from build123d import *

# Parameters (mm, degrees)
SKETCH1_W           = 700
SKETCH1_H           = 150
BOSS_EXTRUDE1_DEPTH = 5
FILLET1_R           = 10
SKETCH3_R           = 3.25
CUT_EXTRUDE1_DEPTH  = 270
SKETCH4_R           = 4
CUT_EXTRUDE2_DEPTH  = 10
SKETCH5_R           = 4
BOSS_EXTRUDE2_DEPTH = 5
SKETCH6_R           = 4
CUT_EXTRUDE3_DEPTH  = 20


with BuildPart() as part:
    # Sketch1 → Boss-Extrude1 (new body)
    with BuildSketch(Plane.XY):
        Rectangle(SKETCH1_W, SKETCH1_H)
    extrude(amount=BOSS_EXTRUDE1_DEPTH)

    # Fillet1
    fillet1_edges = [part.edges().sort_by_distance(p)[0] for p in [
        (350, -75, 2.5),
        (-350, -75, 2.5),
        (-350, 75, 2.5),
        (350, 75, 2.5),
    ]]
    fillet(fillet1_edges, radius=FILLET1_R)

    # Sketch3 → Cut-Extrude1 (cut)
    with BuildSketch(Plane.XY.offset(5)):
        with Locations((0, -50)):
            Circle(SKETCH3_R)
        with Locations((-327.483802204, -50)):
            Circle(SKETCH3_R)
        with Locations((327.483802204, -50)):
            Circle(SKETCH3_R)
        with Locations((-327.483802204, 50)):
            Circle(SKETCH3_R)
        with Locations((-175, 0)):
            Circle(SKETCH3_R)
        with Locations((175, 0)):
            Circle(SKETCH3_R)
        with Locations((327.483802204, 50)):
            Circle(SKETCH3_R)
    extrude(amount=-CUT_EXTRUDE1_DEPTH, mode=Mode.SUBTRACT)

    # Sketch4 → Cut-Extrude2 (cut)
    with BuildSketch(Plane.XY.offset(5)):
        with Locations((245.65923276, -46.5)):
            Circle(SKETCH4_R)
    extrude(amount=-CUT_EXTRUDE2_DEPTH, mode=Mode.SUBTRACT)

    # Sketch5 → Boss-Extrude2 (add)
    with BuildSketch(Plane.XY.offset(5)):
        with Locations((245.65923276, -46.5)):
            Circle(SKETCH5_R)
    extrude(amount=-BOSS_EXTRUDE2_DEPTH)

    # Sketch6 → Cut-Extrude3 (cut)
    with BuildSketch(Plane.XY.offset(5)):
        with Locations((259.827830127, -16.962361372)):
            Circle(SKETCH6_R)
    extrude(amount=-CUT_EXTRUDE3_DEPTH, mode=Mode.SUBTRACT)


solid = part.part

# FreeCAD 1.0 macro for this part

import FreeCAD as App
import Part
import Sketcher
from FreeCAD import Vector


def edges_at(feature, points):
    """Names of the edges that pass closest to the given points."""
    edges = feature.Shape.Edges
    near = lambda p: min(range(len(edges)), key=lambda i: edges[i].distToShape(Part.Vertex(*p))[0])
    return sorted({f"Edge{near(p) + 1}" for p in points})

doc = App.newDocument("Part")
body = doc.addObject("PartDesign::Body", "Body")

# Sketch on XY plane
sketch1 = body.newObject("Sketcher::SketchObject", "Sketch")
sketch1.AttachmentSupport = (doc.getObject("XY_Plane"), [""])
sketch1.MapMode = "FlatFace"
sketch1.addGeometry([
    Part.LineSegment(Vector(-350, 75, 0), Vector(-350, -75, 0)),
    Part.LineSegment(Vector(-350, -75, 0), Vector(350, -75, 0)),
    Part.LineSegment(Vector(350, -75, 0), Vector(350, 75, 0)),
    Part.LineSegment(Vector(350, 75, 0), Vector(-350, 75, 0)),
], False)
sketch1.addConstraint([
    Sketcher.Constraint("Coincident", 0, 2, 1, 1),
    Sketcher.Constraint("Coincident", 1, 2, 2, 1),
    Sketcher.Constraint("Coincident", 2, 2, 3, 1),
    Sketcher.Constraint("Coincident", 3, 2, 0, 1),
    Sketcher.Constraint("Vertical", 0),
    Sketcher.Constraint("Horizontal", 1),
    Sketcher.Constraint("Vertical", 2),
    Sketcher.Constraint("Horizontal", 3),
    Sketcher.Constraint("Symmetric", 0, 2, 2, 2, -1, 1),
    Sketcher.Constraint("DistanceX", 1, 1, 1, 2, 700.0),
    Sketcher.Constraint("DistanceY", 0, 2, 0, 1, 150.0),
])
pad1 = body.newObject("PartDesign::Pad", "Pad")
pad1.Profile = sketch1
pad1.Length = 5
doc.recompute()

fillet = body.newObject("PartDesign::Fillet", "Fillet")
fillet.Base = (pad1, edges_at(pad1, [
    (350, -75, 2.5),
    (-350, -75, 2.5),
    (-350, 75, 2.5),
    (350, 75, 2.5),
]))
fillet.Radius = 10

# Sketch on XY plane
sketch2 = body.newObject("Sketcher::SketchObject", "Sketch001")
sketch2.AttachmentSupport = (doc.getObject("XY_Plane"), [""])
sketch2.MapMode = "FlatFace"
sketch2.AttachmentOffset = App.Placement(Vector(0, 0, 5), App.Rotation())
sketch2.addGeometry([
    Part.Circle(Vector(0, -50, 0), Vector(0, 0, 1), 3.2),  # 0
    Part.Circle(Vector(-327.5, -50, 0), Vector(0, 0, 1), 3.2),  # 1
    Part.Circle(Vector(327.5, -50, 0), Vector(0, 0, 1), 3.2),  # 2
    Part.Circle(Vector(-327.5, 50, 0), Vector(0, 0, 1), 3.2),  # 3
    Part.Circle(Vector(-175, 0, 0), Vector(0, 0, 1), 3.2),  # 4
    Part.Circle(Vector(175, 0, 0), Vector(0, 0, 1), 3.2),  # 5
    Part.Circle(Vector(327.5, 50, 0), Vector(0, 0, 1), 3.2),  # 6
], False)
sketch2.addConstraint([
    Sketcher.Constraint("Equal", 0, 1),
    Sketcher.Constraint("Equal", 1, 2),
    Sketcher.Constraint("Equal", 2, 3),
    Sketcher.Constraint("Equal", 3, 4),
    Sketcher.Constraint("Equal", 4, 5),
    Sketcher.Constraint("Equal", 5, 6),
    Sketcher.Constraint("Symmetric", 2, 3, 3, 3, -1, 1),
    Sketcher.Constraint("Symmetric", 4, 3, 5, 3, -1, 1),
    Sketcher.Constraint("Symmetric", 1, 3, 6, 3, -1, 1),
    Sketcher.Constraint("Symmetric", 1, 3, 2, 3, -2),
    Sketcher.Constraint("PointOnObject", 0, 3, -2),
    Sketcher.Constraint("PointOnObject", 4, 3, -1),
    Sketcher.Constraint("Horizontal", 0, 3, 1, 3),
    Sketcher.Constraint("Diameter", 0, 6.5),
    Sketcher.Constraint("DistanceY", 0, 3, -1, 1, 50.0),
    Sketcher.Constraint("DistanceX", 4, 3, -1, 1, 175.0),
    Sketcher.Constraint("DistanceX", 1, 3, -1, 1, 327.483802),
])
pocket1 = body.newObject("PartDesign::Pocket", "Pocket")
pocket1.Profile = sketch2
pocket1.Length = 270

# Sketch on XY plane
sketch3 = body.newObject("Sketcher::SketchObject", "Sketch002")
sketch3.AttachmentSupport = (doc.getObject("XY_Plane"), [""])
sketch3.MapMode = "FlatFace"
sketch3.AttachmentOffset = App.Placement(Vector(0, 0, 5), App.Rotation())
sketch3.addGeometry(Part.Circle(Vector(245.7, -46.5, 0), Vector(0, 0, 1), 4), False)
sketch3.addConstraint([
    Sketcher.Constraint("Diameter", 0, 8.0),
    Sketcher.Constraint("DistanceY", 0, 3, -1, 1, 46.5),
    Sketcher.Constraint("DistanceX", -1, 1, 0, 3, 245.659233),
])
pocket2 = body.newObject("PartDesign::Pocket", "Pocket001")
pocket2.Profile = sketch3
pocket2.Length = 10

# Sketch on XY plane
sketch4 = body.newObject("Sketcher::SketchObject", "Sketch003")
sketch4.AttachmentSupport = (doc.getObject("XY_Plane"), [""])
sketch4.MapMode = "FlatFace"
sketch4.AttachmentOffset = App.Placement(Vector(0, 0, 5), App.Rotation())
sketch4.addGeometry(Part.Circle(Vector(245.7, -46.5, 0), Vector(0, 0, 1), 4), False)
sketch4.addConstraint([
    Sketcher.Constraint("Diameter", 0, 8.0),
    Sketcher.Constraint("DistanceY", 0, 3, -1, 1, 46.5),
    Sketcher.Constraint("DistanceX", -1, 1, 0, 3, 245.659233),
])
pad2 = body.newObject("PartDesign::Pad", "Pad001")
pad2.Profile = sketch4
pad2.Length = 5
pad2.Reversed = True

# Sketch on XY plane
sketch5 = body.newObject("Sketcher::SketchObject", "Sketch004")
sketch5.AttachmentSupport = (doc.getObject("XY_Plane"), [""])
sketch5.MapMode = "FlatFace"
sketch5.AttachmentOffset = App.Placement(Vector(0, 0, 5), App.Rotation())
sketch5.addGeometry(Part.Circle(Vector(259.8, -17, 0), Vector(0, 0, 1), 4), False)
sketch5.addConstraint([
    Sketcher.Constraint("Diameter", 0, 8.0),
    Sketcher.Constraint("DistanceX", -1, 1, 0, 3, 259.82783),
    Sketcher.Constraint("DistanceY", 0, 3, -1, 1, 16.962361),
])
pocket3 = body.newObject("PartDesign::Pocket", "Pocket002")
pocket3.Profile = sketch5
pocket3.Length = 20

doc.recompute()
